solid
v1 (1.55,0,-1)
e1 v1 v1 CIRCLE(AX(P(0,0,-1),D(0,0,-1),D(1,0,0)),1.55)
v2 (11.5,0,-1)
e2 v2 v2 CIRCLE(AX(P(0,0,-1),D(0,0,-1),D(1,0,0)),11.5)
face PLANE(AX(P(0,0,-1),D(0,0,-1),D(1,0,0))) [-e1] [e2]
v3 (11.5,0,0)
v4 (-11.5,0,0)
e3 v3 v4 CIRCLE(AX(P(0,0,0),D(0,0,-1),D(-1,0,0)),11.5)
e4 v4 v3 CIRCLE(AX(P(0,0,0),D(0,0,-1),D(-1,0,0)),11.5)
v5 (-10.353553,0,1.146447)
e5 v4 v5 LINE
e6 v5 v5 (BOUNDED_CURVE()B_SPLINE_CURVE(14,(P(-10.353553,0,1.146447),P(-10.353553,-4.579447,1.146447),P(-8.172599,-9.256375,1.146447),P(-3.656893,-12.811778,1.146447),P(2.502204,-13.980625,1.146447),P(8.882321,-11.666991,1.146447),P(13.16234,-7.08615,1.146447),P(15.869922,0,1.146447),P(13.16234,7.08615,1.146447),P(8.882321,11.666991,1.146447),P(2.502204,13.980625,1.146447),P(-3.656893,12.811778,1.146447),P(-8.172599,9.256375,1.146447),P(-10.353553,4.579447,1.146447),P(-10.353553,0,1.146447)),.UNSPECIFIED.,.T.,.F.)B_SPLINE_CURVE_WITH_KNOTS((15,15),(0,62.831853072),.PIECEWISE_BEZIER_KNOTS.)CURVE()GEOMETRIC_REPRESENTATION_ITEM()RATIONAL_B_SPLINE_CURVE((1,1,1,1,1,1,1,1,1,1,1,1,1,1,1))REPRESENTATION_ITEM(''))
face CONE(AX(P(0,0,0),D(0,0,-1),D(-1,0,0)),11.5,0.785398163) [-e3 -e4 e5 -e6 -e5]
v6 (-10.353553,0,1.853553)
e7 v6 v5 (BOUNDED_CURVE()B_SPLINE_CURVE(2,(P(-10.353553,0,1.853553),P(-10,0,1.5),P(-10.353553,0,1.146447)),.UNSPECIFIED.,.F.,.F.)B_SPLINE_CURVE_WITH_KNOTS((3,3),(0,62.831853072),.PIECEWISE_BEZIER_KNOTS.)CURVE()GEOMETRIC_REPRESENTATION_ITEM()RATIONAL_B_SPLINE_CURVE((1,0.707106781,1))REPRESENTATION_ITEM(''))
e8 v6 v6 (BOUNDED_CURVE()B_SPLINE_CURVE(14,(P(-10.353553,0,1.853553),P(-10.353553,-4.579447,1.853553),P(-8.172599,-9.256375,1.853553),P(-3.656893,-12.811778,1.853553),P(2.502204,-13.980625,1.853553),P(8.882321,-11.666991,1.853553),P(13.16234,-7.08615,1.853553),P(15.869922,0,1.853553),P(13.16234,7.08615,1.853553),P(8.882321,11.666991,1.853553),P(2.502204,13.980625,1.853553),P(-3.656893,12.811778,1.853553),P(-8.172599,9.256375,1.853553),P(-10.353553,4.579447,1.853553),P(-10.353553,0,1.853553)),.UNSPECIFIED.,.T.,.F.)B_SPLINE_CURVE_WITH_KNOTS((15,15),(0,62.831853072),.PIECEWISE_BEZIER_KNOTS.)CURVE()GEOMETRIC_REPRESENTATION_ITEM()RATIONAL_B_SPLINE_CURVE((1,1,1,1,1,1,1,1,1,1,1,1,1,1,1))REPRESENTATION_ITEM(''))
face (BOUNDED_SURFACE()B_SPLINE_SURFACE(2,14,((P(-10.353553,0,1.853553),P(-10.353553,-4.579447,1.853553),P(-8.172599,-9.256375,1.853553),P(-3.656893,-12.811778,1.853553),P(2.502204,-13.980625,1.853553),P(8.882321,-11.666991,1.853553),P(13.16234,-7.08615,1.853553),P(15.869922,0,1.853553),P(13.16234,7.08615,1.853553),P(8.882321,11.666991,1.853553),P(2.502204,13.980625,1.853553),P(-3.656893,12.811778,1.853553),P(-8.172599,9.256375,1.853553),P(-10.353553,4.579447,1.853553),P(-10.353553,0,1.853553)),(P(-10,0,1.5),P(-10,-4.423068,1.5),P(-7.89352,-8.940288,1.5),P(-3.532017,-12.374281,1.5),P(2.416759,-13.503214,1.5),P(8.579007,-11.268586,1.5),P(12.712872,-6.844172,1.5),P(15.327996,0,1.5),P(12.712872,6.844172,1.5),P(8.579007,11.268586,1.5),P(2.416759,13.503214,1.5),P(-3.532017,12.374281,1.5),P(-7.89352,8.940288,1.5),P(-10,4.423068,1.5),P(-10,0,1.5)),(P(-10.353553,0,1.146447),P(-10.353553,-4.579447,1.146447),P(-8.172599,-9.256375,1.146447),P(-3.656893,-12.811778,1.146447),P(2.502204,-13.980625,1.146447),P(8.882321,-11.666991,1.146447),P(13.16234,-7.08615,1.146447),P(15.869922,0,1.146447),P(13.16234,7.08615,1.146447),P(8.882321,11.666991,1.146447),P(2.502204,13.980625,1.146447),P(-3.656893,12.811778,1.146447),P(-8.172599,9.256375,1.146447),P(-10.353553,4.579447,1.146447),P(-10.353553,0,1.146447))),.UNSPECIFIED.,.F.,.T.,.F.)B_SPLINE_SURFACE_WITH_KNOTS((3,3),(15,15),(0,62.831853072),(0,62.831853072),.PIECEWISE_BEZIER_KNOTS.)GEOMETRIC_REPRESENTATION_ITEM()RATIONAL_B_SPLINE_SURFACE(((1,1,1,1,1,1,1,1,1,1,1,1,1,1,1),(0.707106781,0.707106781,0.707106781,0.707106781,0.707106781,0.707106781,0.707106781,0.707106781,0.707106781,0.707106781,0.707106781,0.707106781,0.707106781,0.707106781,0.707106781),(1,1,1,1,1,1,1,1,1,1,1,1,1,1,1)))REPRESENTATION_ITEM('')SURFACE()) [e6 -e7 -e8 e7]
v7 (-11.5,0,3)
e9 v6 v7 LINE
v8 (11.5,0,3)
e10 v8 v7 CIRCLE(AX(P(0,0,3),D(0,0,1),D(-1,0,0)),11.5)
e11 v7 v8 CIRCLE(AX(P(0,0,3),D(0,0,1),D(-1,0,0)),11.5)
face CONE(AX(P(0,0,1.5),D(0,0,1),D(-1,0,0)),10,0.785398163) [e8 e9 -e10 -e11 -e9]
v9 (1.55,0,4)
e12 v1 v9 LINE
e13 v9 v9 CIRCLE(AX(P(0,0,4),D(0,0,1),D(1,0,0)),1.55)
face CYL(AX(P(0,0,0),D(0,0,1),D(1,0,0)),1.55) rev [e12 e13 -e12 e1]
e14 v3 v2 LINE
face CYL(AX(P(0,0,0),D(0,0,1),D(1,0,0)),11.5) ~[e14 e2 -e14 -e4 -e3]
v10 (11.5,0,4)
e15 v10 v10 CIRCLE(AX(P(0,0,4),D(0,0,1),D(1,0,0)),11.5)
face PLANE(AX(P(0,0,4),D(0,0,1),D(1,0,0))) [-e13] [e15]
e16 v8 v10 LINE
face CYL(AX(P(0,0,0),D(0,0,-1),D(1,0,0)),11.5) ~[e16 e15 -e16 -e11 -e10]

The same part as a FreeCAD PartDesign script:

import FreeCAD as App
import Part
import Sketcher

V = App.Vector


def edges_at(feature, points):
    """Names of the edges that pass closest to the given points."""
    edges = feature.Shape.Edges
    near = lambda p: min(range(len(edges)), key=lambda i: edges[i].distToShape(Part.Vertex(*p))[0])
    return sorted({f"Edge{near(p) + 1}" for p in points})

doc = App.newDocument("Part")
params = doc.addObject("Spreadsheet::Sheet", "Params")
for row, (alias, value) in enumerate([
    ("sketch1_diameter", "23 mm"),
    ("sketch1_diameter2", "3.1 mm"),
    ("pad1_length", "4 mm"),
    ("sketch2_height", "3 mm"),
    ("groove_angle", "360 deg"),
    ("sketch3_diameter", "23 mm"),
    ("sketch3_diameter2", "3.1 mm"),
    ("pad2_length", "1 mm"),
    ("fillet_radius", "0.5 mm"),
], start=1):
    params.set(f"A{row}", alias)
    params.set(f"B{row}", "=" + value)
    params.setAlias(f"B{row}", alias)

body = doc.addObject("PartDesign::Body", "Body")

# Sketch on XY plane
sketch1 = body.newObject("Sketcher::SketchObject", "Sketch")
sketch1.AttachmentSupport = (doc.getObject("XY_Plane"), [""])
sketch1.MapMode = "FlatFace"
sketch1.addGeometry([
    Part.Circle(V(0, 0, 0), V(0, 0, 1), 11.5),
    Part.Circle(V(0, 0, 0), V(0, 0, 1), 1.6),
], False)
sketch1.addConstraint([
    Sketcher.Constraint("Coincident", 0, 3, -1, 1),
    Sketcher.Constraint("Coincident", 1, 3, -1, 1),
    Sketcher.Constraint("Diameter", 0, 23.0),
    Sketcher.Constraint("Diameter", 1, 3.1),
])
sketch1.setExpression("Constraints[2]", "Params.sketch1_diameter")
sketch1.setExpression("Constraints[3]", "Params.sketch1_diameter2")
pad1 = body.newObject("PartDesign::Pad", "Pad")
pad1.Profile = sketch1
pad1.setExpression("Length", "Params.pad1_length")

# Sketch on XZ plane
sketch2 = body.newObject("Sketcher::SketchObject", "Sketch001")
sketch2.AttachmentSupport = (doc.getObject("XZ_Plane"), [""])
sketch2.MapMode = "FlatFace"
sketch2.addGeometry([
    Part.LineSegment(V(-11.5, 3, 0), V(-11.5, 0, 0)),
    Part.LineSegment(V(-11.5, 0, 0), V(-10, 1.5, 0)),
    Part.LineSegment(V(-10, 1.5, 0), V(-11.5, 3, 0)),
], False)
sketch2.addConstraint([
    Sketcher.Constraint("Coincident", 0, 2, 1, 1),
    Sketcher.Constraint("Coincident", 1, 2, 2, 1),
    Sketcher.Constraint("Coincident", 2, 2, 0, 1),
    Sketcher.Constraint("Vertical", 0),
    Sketcher.Constraint("PointOnObject", 0, 2, -1),
    Sketcher.Constraint("Perpendicular", 1, 2),
    Sketcher.Constraint("Equal", 1, 2),
    Sketcher.Constraint("DistanceY", 0, 2, 0, 1, 3.0),
    Sketcher.Constraint("DistanceX", 1, 2, -1, 1, 10.0),
])
sketch2.setExpression("Constraints[7]", "Params.sketch2_height")
groove = body.newObject("PartDesign::Groove", "Groove")
groove.Profile = sketch2
groove.ReferenceAxis = (sketch2, ["V_Axis"])
groove.setExpression("Angle", "Params.groove_angle")

# Sketch on XY plane
sketch3 = body.newObject("Sketcher::SketchObject", "Sketch002")
sketch3.AttachmentSupport = (doc.getObject("XY_Plane"), [""])
sketch3.MapMode = "FlatFace"
sketch3.addGeometry([
    Part.Circle(V(0, 0, 0), V(0, 0, 1), 11.5),
    Part.Circle(V(0, 0, 0), V(0, 0, 1), 1.6),
], False)
sketch3.addConstraint([
    Sketcher.Constraint("Coincident", 0, 3, -1, 1),
    Sketcher.Constraint("Coincident", 1, 3, -1, 1),
    Sketcher.Constraint("Diameter", 0, 23.0),
    Sketcher.Constraint("Diameter", 1, 3.1),
])
sketch3.setExpression("Constraints[2]", "Params.sketch3_diameter")
sketch3.setExpression("Constraints[3]", "Params.sketch3_diameter2")
pad2 = body.newObject("PartDesign::Pad", "Pad001")
pad2.Profile = sketch3
pad2.setExpression("Length", "Params.pad2_length")
pad2.Reversed = True
doc.recompute()

fillet = body.newObject("PartDesign::Fillet", "Fillet")
fillet.Base = (pad2, edges_at(pad2, [(10, 0, 1.5)]))
fillet.setExpression("Radius", "Params.fillet_radius")

doc.recompute()
